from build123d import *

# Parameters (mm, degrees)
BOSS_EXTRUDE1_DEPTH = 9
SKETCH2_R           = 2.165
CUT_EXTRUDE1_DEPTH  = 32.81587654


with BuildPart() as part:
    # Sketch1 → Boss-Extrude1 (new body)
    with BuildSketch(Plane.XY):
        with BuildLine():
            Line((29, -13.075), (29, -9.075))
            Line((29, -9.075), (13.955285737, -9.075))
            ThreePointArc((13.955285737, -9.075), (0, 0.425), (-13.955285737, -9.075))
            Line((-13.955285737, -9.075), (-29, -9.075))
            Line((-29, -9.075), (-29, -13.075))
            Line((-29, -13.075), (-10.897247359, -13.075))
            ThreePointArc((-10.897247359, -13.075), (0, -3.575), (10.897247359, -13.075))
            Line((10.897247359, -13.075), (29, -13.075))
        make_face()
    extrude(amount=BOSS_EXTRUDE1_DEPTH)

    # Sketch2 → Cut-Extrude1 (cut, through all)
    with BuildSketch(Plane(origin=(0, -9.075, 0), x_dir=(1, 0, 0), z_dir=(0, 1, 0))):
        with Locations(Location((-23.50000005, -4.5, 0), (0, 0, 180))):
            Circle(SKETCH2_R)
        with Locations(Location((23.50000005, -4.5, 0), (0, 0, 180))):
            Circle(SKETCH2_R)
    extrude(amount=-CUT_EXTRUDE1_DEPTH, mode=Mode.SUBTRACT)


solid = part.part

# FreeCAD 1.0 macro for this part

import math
import FreeCAD as App
import Part
import Sketcher
from FreeCAD import Vector

doc = App.newDocument("Part")
body = doc.addObject("PartDesign::Body", "Body")

# Sketch on XY plane
sketch1 = body.newObject("Sketcher::SketchObject", "Sketch")
sketch1.AttachmentSupport = (doc.getObject("XY_Plane"), [""])
sketch1.MapMode = "FlatFace"
sketch1.addGeometry([
    Part.LineSegment(Vector(29, -13.1, 0), Vector(29, -9.1, 0)),  # 0
    Part.LineSegment(Vector(29, -9.1, 0), Vector(14, -9.1, 0)),  # 1
    Part.ArcOfCircle(Part.Circle(Vector(0, -14.6, 0), Vector(0, 0, 1), 15), math.radians(22), math.radians(158)),  # 2
    Part.LineSegment(Vector(-14, -9.1, 0), Vector(-29, -9.1, 0)),  # 3
    Part.LineSegment(Vector(-29, -9.1, 0), Vector(-29, -13.1, 0)),  # 4
    Part.LineSegment(Vector(-29, -13.1, 0), Vector(-10.9, -13.1, 0)),  # 5
    Part.ArcOfCircle(Part.Circle(Vector(0, -14.6, 0), Vector(0, 0, 1), 11), math.radians(8), math.radians(172)),  # 6
    Part.LineSegment(Vector(10.9, -13.1, 0), Vector(29, -13.1, 0)),  # 7
], False)
sketch1.addConstraint([
    Sketcher.Constraint("Coincident", 0, 2, 1, 1),
    Sketcher.Constraint("Coincident", 1, 2, 2, 1),
    Sketcher.Constraint("Coincident", 2, 2, 3, 1),
    Sketcher.Constraint("Coincident", 3, 2, 4, 1),
    Sketcher.Constraint("Coincident", 4, 2, 5, 1),
    Sketcher.Constraint("Coincident", 5, 2, 6, 2),
    Sketcher.Constraint("Coincident", 6, 1, 7, 1),
    Sketcher.Constraint("Coincident", 7, 2, 0, 1),
    Sketcher.Constraint("Vertical", 0),
    Sketcher.Constraint("Horizontal", 1),
    Sketcher.Constraint("Horizontal", 3),
    Sketcher.Constraint("Vertical", 4),
    Sketcher.Constraint("Horizontal", 5),
    Sketcher.Constraint("Horizontal", 7),
    Sketcher.Constraint("Coincident", 6, 3, 2, 3),
    Sketcher.Constraint("Symmetric", 1, 2, 2, 2, -2),
    Sketcher.Constraint("Symmetric", 4, 2, 7, 2, -2),
    Sketcher.Constraint("Radius", 2, 15.0),
    Sketcher.Constraint("Radius", 6, 11.0),
    Sketcher.Constraint("DistanceY", 0, 1, 0, 2, 4.0),
    Sketcher.Constraint("DistanceX", -1, 1, 0, 2, 29.0),
    Sketcher.Constraint("DistanceY", 2, 3, 0, 2, 5.5),
    Sketcher.Constraint("DistanceY", 2, 3, -1, 1, 14.575),
])
pad1 = body.newObject("PartDesign::Pad", "Pad")
pad1.Profile = sketch1
pad1.Length = 9

# Sketch on XZ plane
sketch2 = body.newObject("Sketcher::SketchObject", "Sketch001")
sketch2.AttachmentSupport = (doc.getObject("XZ_Plane"), [""])
sketch2.MapMode = "FlatFace"
sketch2.AttachmentOffset = App.Placement(Vector(0, 0, 9.075), App.Rotation())
sketch2.addGeometry([
    Part.Circle(Vector(-23.5, 4.5, 0), Vector(0, 0, 1), 2.2),
    Part.Circle(Vector(23.5, 4.5, 0), Vector(0, 0, 1), 2.2),
], False)
sketch2.addConstraint([
    Sketcher.Constraint("Equal", 0, 1),
    Sketcher.Constraint("Symmetric", 0, 3, 1, 3, -2),
    Sketcher.Constraint("Diameter", 0, 4.33),
    Sketcher.Constraint("DistanceX", 0, 3, 1, 3, 47.0),
    Sketcher.Constraint("DistanceY", -1, 1, 0, 3, 4.5),
])
pocket1 = body.newObject("PartDesign::Pocket", "Pocket")
pocket1.Profile = sketch2
pocket1.Type = "ThroughAll"
pocket1.Reversed = True

doc.recompute()
